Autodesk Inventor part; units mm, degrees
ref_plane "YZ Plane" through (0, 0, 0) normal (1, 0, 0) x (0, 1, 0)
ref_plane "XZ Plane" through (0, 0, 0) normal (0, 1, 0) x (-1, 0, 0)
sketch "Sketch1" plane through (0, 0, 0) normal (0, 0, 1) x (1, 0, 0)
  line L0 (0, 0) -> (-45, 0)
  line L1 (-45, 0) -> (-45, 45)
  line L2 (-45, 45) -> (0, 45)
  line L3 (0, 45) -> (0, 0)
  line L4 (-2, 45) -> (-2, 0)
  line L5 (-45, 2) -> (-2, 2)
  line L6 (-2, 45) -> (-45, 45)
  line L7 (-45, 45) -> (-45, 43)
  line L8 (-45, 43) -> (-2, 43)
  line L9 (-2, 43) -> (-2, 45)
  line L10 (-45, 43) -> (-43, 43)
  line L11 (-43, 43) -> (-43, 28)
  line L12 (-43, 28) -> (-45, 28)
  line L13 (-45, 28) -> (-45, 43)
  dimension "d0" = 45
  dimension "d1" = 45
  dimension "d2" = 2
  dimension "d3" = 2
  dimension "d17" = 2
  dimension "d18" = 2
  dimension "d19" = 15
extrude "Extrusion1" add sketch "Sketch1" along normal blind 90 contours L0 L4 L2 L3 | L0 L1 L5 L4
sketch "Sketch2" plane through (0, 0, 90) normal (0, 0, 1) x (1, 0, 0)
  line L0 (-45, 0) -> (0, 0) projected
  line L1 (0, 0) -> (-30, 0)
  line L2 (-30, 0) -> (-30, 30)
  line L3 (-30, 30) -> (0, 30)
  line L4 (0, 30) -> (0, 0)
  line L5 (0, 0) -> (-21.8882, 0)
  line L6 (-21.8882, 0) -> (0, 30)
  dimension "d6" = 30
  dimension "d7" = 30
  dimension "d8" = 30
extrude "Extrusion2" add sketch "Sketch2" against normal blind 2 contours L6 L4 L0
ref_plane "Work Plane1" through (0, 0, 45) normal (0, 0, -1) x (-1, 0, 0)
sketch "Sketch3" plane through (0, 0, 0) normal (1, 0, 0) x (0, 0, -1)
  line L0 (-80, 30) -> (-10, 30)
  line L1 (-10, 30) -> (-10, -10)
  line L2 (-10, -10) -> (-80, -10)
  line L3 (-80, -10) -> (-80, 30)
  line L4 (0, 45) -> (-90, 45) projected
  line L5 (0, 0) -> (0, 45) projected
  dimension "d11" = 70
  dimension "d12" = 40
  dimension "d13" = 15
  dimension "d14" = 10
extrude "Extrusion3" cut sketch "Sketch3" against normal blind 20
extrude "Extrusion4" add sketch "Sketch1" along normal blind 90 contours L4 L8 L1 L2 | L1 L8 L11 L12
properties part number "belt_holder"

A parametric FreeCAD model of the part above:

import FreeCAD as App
import Part
import Sketcher


def add_polygon(sketch, points):
    """Adds a closed chain of lines whose ends are joined by coincident constraints."""
    first, n = sketch.GeometryCount, len(points)
    for a, b in zip(points, points[1:] + points[:1]):
        sketch.addGeometry(Part.LineSegment(App.Vector(*a, 0), App.Vector(*b, 0)), False)
    for i in range(n):
        sketch.addConstraint(Sketcher.Constraint("Coincident", first + i, 2, first + (i + 1) % n, 1))

doc = App.newDocument("Part")
body = doc.addObject("PartDesign::Body", "Body")

# Sketch on XY plane
sketch1 = body.newObject("Sketcher::SketchObject", "Sketch")
sketch1.AttachmentSupport = (doc.getObject("XY_Plane"), [""])
sketch1.MapMode = "FlatFace"
add_polygon(sketch1, [(0, 0), (0, 45), (-2, 45), (-2, 2), (-45, 2), (-45, 0)])  # lines 0-5
sketch1.addConstraint([
    Sketcher.Constraint("Vertical", 0),
    Sketcher.Constraint("Horizontal", 1),
    Sketcher.Constraint("Vertical", 2),
    Sketcher.Constraint("Horizontal", 3),
    Sketcher.Constraint("Vertical", 4),
    Sketcher.Constraint("Horizontal", 5),
    Sketcher.Constraint("Coincident", 5, 2, -1, 1),
    Sketcher.Constraint("Equal", 5, 0),
    Sketcher.Constraint("Equal", 3, 2),
    Sketcher.Constraint("DistanceX", 1, 2, 1, 1, 2.0),
    Sketcher.Constraint("DistanceX", 5, 1, 5, 2, 45.0),
])
pad1 = body.newObject("PartDesign::Pad", "Pad")
pad1.Profile = sketch1
pad1.Length = 90

# Sketch on XY plane
sketch2 = body.newObject("Sketcher::SketchObject", "Sketch001")
sketch2.AttachmentSupport = (doc.getObject("XY_Plane"), [""])
sketch2.MapMode = "FlatFace"
sketch2.AttachmentOffset = App.Placement(App.Vector(0, 0, 90), App.Rotation())
add_polygon(sketch2, [(0, 30), (-22, 0), (0, 0)])  # lines 0-2
sketch2.addConstraint([
    Sketcher.Constraint("Horizontal", 1),
    Sketcher.Constraint("Vertical", 2),
    Sketcher.Constraint("Coincident", 1, 2, -1, 1),
    Sketcher.Constraint("DistanceY", 2, 1, 2, 2, 30.0),
    Sketcher.Constraint("DistanceX", 1, 1, 1, 2, 21.8882),
])
pad2 = body.newObject("PartDesign::Pad", "Pad001")
pad2.Profile = sketch2
pad2.Length = 2
pad2.Reversed = True

# Sketch on YZ plane
sketch3 = body.newObject("Sketcher::SketchObject", "Sketch002")
sketch3.AttachmentSupport = (doc.getObject("YZ_Plane"), [""])
sketch3.MapMode = "FlatFace"
add_polygon(sketch3, [(30, 10), (30, 80), (-10, 80), (-10, 10)])  # lines 0-3
sketch3.addConstraint([
    Sketcher.Constraint("Vertical", 0),
    Sketcher.Constraint("Horizontal", 1),
    Sketcher.Constraint("Vertical", 2),
    Sketcher.Constraint("Horizontal", 3),
    Sketcher.Constraint("DistanceX", 1, 2, 1, 1, 40.0),
    Sketcher.Constraint("DistanceY", 0, 1, 0, 2, 70.0),
    Sketcher.Constraint("DistanceX", 1, 2, -1, 1, 10.0),
    Sketcher.Constraint("DistanceY", -1, 1, 2, 2, 10.0),
])
pocket1 = body.newObject("PartDesign::Pocket", "Pocket")
pocket1.Profile = sketch3
pocket1.Length = 20

# Sketch on XY plane
sketch4 = body.newObject("Sketcher::SketchObject", "Sketch003")
sketch4.AttachmentSupport = (doc.getObject("XY_Plane"), [""])
sketch4.MapMode = "FlatFace"
add_polygon(sketch4, [(-2, 43), (-2, 45), (-45, 45), (-45, 28), (-43, 28), (-43, 43)])  # lines 0-5
sketch4.addConstraint([
    Sketcher.Constraint("Vertical", 0),
    Sketcher.Constraint("Horizontal", 1),
    Sketcher.Constraint("Vertical", 2),
    Sketcher.Constraint("Horizontal", 3),
    Sketcher.Constraint("Vertical", 4),
    Sketcher.Constraint("Horizontal", 5),
    Sketcher.Constraint("Equal", 3, 0),
    Sketcher.Constraint("DistanceX", 3, 1, 3, 2, 2.0),
    Sketcher.Constraint("DistanceY", 4, 1, 4, 2, 15.0),
    Sketcher.Constraint("DistanceX", 0, 2, -1, 1, 2.0),
    Sketcher.Constraint("DistanceY", -1, 1, 0, 2, 45.0),
    Sketcher.Constraint("DistanceX", 1, 2, -1, 1, 45.0),
])
pad3 = body.newObject("PartDesign::Pad", "Pad002")
pad3.Profile = sketch4
pad3.Length = 90

doc.recompute()
